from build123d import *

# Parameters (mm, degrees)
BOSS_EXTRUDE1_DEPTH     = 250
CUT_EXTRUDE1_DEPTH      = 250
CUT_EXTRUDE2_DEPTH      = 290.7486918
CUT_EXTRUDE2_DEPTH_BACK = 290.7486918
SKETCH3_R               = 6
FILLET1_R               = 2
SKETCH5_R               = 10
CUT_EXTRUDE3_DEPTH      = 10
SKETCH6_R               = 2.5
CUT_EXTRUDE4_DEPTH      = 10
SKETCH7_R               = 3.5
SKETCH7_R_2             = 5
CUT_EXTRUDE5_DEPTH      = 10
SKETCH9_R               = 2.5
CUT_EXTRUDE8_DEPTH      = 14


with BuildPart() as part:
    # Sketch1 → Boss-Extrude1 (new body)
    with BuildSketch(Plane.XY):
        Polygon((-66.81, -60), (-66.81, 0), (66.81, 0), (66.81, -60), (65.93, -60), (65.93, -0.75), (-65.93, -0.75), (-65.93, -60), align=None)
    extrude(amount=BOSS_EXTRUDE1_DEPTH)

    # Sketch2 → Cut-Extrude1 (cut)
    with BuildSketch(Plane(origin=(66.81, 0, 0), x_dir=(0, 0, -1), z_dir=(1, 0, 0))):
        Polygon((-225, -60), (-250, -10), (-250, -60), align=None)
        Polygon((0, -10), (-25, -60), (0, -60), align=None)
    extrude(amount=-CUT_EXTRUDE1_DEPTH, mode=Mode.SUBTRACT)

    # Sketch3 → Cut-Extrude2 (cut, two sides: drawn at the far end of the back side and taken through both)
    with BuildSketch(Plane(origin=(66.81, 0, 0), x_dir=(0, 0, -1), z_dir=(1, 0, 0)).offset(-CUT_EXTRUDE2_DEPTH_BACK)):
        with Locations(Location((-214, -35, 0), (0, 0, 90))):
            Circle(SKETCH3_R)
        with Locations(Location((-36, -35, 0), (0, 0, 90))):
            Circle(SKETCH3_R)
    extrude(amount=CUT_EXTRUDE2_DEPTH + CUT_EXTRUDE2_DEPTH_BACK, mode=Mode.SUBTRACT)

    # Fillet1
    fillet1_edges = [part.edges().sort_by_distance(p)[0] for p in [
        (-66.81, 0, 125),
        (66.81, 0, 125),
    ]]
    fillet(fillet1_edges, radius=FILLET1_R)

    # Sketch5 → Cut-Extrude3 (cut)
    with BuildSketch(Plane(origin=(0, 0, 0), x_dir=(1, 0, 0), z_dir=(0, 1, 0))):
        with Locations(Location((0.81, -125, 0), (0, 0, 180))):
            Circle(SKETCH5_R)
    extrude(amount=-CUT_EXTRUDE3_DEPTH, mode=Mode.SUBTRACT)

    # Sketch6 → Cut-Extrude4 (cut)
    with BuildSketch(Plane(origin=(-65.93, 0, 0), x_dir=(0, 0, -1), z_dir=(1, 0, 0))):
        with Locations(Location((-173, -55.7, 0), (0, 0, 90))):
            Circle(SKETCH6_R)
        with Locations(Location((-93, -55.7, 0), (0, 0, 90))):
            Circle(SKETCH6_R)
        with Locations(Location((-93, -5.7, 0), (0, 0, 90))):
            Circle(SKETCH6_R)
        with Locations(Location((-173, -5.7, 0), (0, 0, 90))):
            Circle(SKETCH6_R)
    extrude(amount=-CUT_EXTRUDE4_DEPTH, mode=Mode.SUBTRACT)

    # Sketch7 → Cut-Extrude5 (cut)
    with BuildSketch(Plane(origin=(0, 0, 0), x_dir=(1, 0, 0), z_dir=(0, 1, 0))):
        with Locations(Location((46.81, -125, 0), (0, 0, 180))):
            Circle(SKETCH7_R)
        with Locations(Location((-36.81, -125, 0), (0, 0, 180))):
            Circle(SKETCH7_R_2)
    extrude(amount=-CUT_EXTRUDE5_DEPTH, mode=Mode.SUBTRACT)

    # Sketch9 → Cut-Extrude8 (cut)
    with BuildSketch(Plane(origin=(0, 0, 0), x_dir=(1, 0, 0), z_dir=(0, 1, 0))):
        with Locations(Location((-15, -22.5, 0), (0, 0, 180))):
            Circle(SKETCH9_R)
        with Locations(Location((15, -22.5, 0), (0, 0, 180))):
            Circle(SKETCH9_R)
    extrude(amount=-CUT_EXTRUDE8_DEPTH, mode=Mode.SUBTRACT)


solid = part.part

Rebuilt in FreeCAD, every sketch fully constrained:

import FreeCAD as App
import Part
import Sketcher


def edges_at(feature, points):
    """Names of the edges that pass closest to the given points."""
    edges = feature.Shape.Edges
    near = lambda p: min(range(len(edges)), key=lambda i: edges[i].distToShape(Part.Vertex(*p))[0])
    return sorted({f"Edge{near(p) + 1}" for p in points})


def add_polygon(sketch, points):
    """Adds a closed chain of lines whose ends are joined by coincident constraints."""
    first, n = sketch.GeometryCount, len(points)
    for a, b in zip(points, points[1:] + points[:1]):
        sketch.addGeometry(Part.LineSegment(App.Vector(*a, 0), App.Vector(*b, 0)), False)
    for i in range(n):
        sketch.addConstraint(Sketcher.Constraint("Coincident", first + i, 2, first + (i + 1) % n, 1))

doc = App.newDocument("Part")
params = doc.addObject("Spreadsheet::Sheet", "Params")
for row, (alias, value) in enumerate([
    ("sketch1_height", "60 mm"),
    ("sketch1_width", "0.88 mm"),
    ("sketch1_width2", "131.86 mm"),
    ("sketch1_height2", "59.25 mm"),
    ("pad1_length", "250 mm"),
    ("sketch2_width", "50 mm"),
    ("sketch2_height", "25 mm"),
    ("pocket1_length", "250 mm"),
    ("sketch3_diameter", "12 mm"),
    ("fillet_radius", "2 mm"),
    ("sketch4_diameter", "20 mm"),
    ("pocket3_length", "10 mm"),
    ("sketch5_diameter", "5 mm"),
    ("pocket4_length", "10 mm"),
    ("sketch6_diameter", "7 mm"),
    ("sketch6_diameter2", "10 mm"),
    ("pocket5_length", "10 mm"),
    ("sketch7_diameter", "5 mm"),
    ("pocket6_length", "14 mm"),
], start=1):
    params.set(f"A{row}", alias)
    params.set(f"B{row}", "=" + value)
    params.setAlias(f"B{row}", alias)

body = doc.addObject("PartDesign::Body", "Body")

sketch1 = body.newObject("Sketcher::SketchObject", "Sketch")
sketch1.AttachmentSupport = (doc.getObject("XY_Plane"), [""])
sketch1.MapMode = "FlatFace"
add_polygon(sketch1, [(-66.8, 0), (-66.8, -60), (-65.9, -60), (-65.9, -0.8), (65.9, -0.8), (65.9, -60), (66.8, -60), (66.8, 0)])
sketch1.addConstraint([
    Sketcher.Constraint("Vertical", 0),
    Sketcher.Constraint("Horizontal", 1),
    Sketcher.Constraint("Vertical", 2),
    Sketcher.Constraint("Horizontal", 3),
    Sketcher.Constraint("Vertical", 4),
    Sketcher.Constraint("Horizontal", 5),
    Sketcher.Constraint("Vertical", 6),
    Sketcher.Constraint("Horizontal", 7),
    Sketcher.Constraint("Symmetric", 6, 2, 7, 2, -1, 1),
    Sketcher.Constraint("Symmetric", 1, 2, 4, 2, -2),
    Sketcher.Constraint("DistanceY", 0, 2, 0, 1, 60.0),
    Sketcher.Constraint("DistanceX", 1, 1, 1, 2, 0.88),
    Sketcher.Constraint("DistanceX", 3, 1, 3, 2, 131.86),
    Sketcher.Constraint("DistanceY", 2, 1, 2, 2, 59.25),
])
sketch1.setExpression("Constraints[18]", "Params.sketch1_height")
sketch1.setExpression("Constraints[19]", "Params.sketch1_width")
sketch1.setExpression("Constraints[20]", "Params.sketch1_width2")
sketch1.setExpression("Constraints[21]", "Params.sketch1_height2")
pad1 = body.newObject("PartDesign::Pad", "Pad")
pad1.Profile = sketch1
pad1.setExpression("Length", "Params.pad1_length")

sketch2 = body.newObject("Sketcher::SketchObject", "Sketch001")
sketch2.AttachmentSupport = (doc.getObject("YZ_Plane"), [""])
sketch2.MapMode = "FlatFace"
sketch2.AttachmentOffset = App.Placement(App.Vector(0, 0, 66.81), App.Rotation())
add_polygon(sketch2, [(-60, 225), (-10, 250), (-60, 250)])
add_polygon(sketch2, [(-10, 0), (-60, 25), (-60, 0)])
sketch2.addConstraint([
    Sketcher.Constraint("Horizontal", 1),
    Sketcher.Constraint("Vertical", 2),
    Sketcher.Constraint("Vertical", 4),
    Sketcher.Constraint("Horizontal", 5),
    Sketcher.Constraint("PointOnObject", 4, 2, -1),
    Sketcher.Constraint("Vertical", 2, 2, 3, 2),
    Sketcher.Constraint("Vertical", 0, 2, 5, 2),
    Sketcher.Constraint("Equal", 2, 4),
    Sketcher.Constraint("DistanceX", 1, 2, 1, 1, 50.0),
    Sketcher.Constraint("DistanceY", 2, 2, 2, 1, 25.0),
    Sketcher.Constraint("DistanceX", 0, 2, -1, 1, 10.0),
    Sketcher.Constraint("DistanceY", -1, 1, 0, 2, 250.0),
])
sketch2.setExpression("Constraints[14]", "Params.sketch2_width")
sketch2.setExpression("Constraints[15]", "Params.sketch2_height")
pocket1 = body.newObject("PartDesign::Pocket", "Pocket")
pocket1.Profile = sketch2
pocket1.setExpression("Length", "Params.pocket1_length")

sketch3 = body.newObject("Sketcher::SketchObject", "Sketch002")
sketch3.AttachmentSupport = (doc.getObject("YZ_Plane"), [""])
sketch3.MapMode = "FlatFace"
sketch3.AttachmentOffset = App.Placement(App.Vector(0, 0, 66.81), App.Rotation())
sketch3.addGeometry([
    Part.Circle(App.Vector(-35, 214, 0), App.Vector(0, 0, 1), 6),
    Part.Circle(App.Vector(-35, 36, 0), App.Vector(0, 0, 1), 6),
], False)
sketch3.addConstraint([
    Sketcher.Constraint("Equal", 0, 1),
    Sketcher.Constraint("Vertical", 0, 3, 1, 3),
    Sketcher.Constraint("Diameter", 0, 12.0),
    Sketcher.Constraint("DistanceX", 0, 3, -1, 1, 35.0),
    Sketcher.Constraint("DistanceY", -1, 1, 0, 3, 214.0),
    Sketcher.Constraint("DistanceY", -1, 1, 1, 3, 36.0),
])
sketch3.setExpression("Constraints[2]", "Params.sketch3_diameter")
pocket2 = body.newObject("PartDesign::Pocket", "Pocket001")
pocket2.Profile = sketch3
pocket2.Type = "ThroughAll"
pocket2.Midplane = True
doc.recompute()

fillet = body.newObject("PartDesign::Fillet", "Fillet")
fillet.Base = (pocket2, edges_at(pocket2, [(-66.81, 0, 125), (66.81, 0, 125)]))
fillet.setExpression("Radius", "Params.fillet_radius")

sketch4 = body.newObject("Sketcher::SketchObject", "Sketch003")
sketch4.AttachmentSupport = (doc.getObject("XZ_Plane"), [""])
sketch4.MapMode = "FlatFace"
sketch4.addGeometry(Part.Circle(App.Vector(1, 125, 0), App.Vector(0, 0, 1), 10), False)
sketch4.addConstraint([
    Sketcher.Constraint("Diameter", 0, 20.0),
    Sketcher.Constraint("DistanceY", -1, 1, 0, 3, 125.0),
    Sketcher.Constraint("DistanceX", -1, 1, 0, 3, 0.81),
])
sketch4.setExpression("Constraints[0]", "Params.sketch4_diameter")
pocket3 = body.newObject("PartDesign::Pocket", "Pocket002")
pocket3.Profile = sketch4
pocket3.setExpression("Length", "Params.pocket3_length")
pocket3.Reversed = True

sketch5 = body.newObject("Sketcher::SketchObject", "Sketch004")
sketch5.AttachmentSupport = (doc.getObject("YZ_Plane"), [""])
sketch5.MapMode = "FlatFace"
sketch5.AttachmentOffset = App.Placement(App.Vector(0, 0, -65.93), App.Rotation())
sketch5.addGeometry([
    Part.Circle(App.Vector(-55.7, 173, 0), App.Vector(0, 0, 1), 2.5),
    Part.Circle(App.Vector(-55.7, 93, 0), App.Vector(0, 0, 1), 2.5),
    Part.Circle(App.Vector(-5.7, 93, 0), App.Vector(0, 0, 1), 2.5),
    Part.Circle(App.Vector(-5.7, 173, 0), App.Vector(0, 0, 1), 2.5),
], False)
sketch5.addConstraint([
    Sketcher.Constraint("Equal", 0, 1),
    Sketcher.Constraint("Equal", 1, 2),
    Sketcher.Constraint("Equal", 2, 3),
    Sketcher.Constraint("Horizontal", 1, 3, 2, 3),
    Sketcher.Constraint("Horizontal", 0, 3, 3, 3),
    Sketcher.Constraint("Vertical", 0, 3, 1, 3),
    Sketcher.Constraint("Vertical", 2, 3, 3, 3),
    Sketcher.Constraint("Diameter", 0, 5.0),
    Sketcher.Constraint("DistanceY", -1, 1, 0, 3, 173.0),
    Sketcher.Constraint("DistanceY", -1, 1, 1, 3, 93.0),
    Sketcher.Constraint("DistanceX", 1, 3, 2, 3, 50.0),
    Sketcher.Constraint("DistanceX", 0, 3, -1, 1, 55.7),
])
sketch5.setExpression("Constraints[7]", "Params.sketch5_diameter")
pocket4 = body.newObject("PartDesign::Pocket", "Pocket003")
pocket4.Profile = sketch5
pocket4.setExpression("Length", "Params.pocket4_length")

sketch6 = body.newObject("Sketcher::SketchObject", "Sketch005")
sketch6.AttachmentSupport = (doc.getObject("XZ_Plane"), [""])
sketch6.MapMode = "FlatFace"
sketch6.addGeometry([
    Part.Circle(App.Vector(46.8, 125, 0), App.Vector(0, 0, 1), 3.5),
    Part.Circle(App.Vector(-36.8, 125, 0), App.Vector(0, 0, 1), 5),
], False)
sketch6.addConstraint([
    Sketcher.Constraint("Horizontal", 0, 3, 1, 3),
    Sketcher.Constraint("Diameter", 0, 7.0),
    Sketcher.Constraint("Diameter", 1, 10.0),
    Sketcher.Constraint("DistanceY", -1, 1, 0, 3, 125.0),
    Sketcher.Constraint("DistanceX", -1, 1, 0, 3, 46.81),
    Sketcher.Constraint("DistanceX", 1, 3, -1, 1, 36.81),
])
sketch6.setExpression("Constraints[1]", "Params.sketch6_diameter")
sketch6.setExpression("Constraints[2]", "Params.sketch6_diameter2")
pocket5 = body.newObject("PartDesign::Pocket", "Pocket004")
pocket5.Profile = sketch6
pocket5.setExpression("Length", "Params.pocket5_length")
pocket5.Reversed = True

sketch7 = body.newObject("Sketcher::SketchObject", "Sketch006")
sketch7.AttachmentSupport = (doc.getObject("XZ_Plane"), [""])
sketch7.MapMode = "FlatFace"
sketch7.addGeometry([
    Part.Circle(App.Vector(-15, 22.5, 0), App.Vector(0, 0, 1), 2.5),
    Part.Circle(App.Vector(15, 22.5, 0), App.Vector(0, 0, 1), 2.5),
], False)
sketch7.addConstraint([
    Sketcher.Constraint("Equal", 0, 1),
    Sketcher.Constraint("Symmetric", 0, 3, 1, 3, -2),
    Sketcher.Constraint("Diameter", 0, 5.0),
    Sketcher.Constraint("DistanceX", 0, 3, -1, 1, 15.0),
    Sketcher.Constraint("DistanceY", -1, 1, 0, 3, 22.5),
])
sketch7.setExpression("Constraints[2]", "Params.sketch7_diameter")
pocket6 = body.newObject("PartDesign::Pocket", "Pocket005")
pocket6.Profile = sketch7
pocket6.setExpression("Length", "Params.pocket6_length")
pocket6.Reversed = True

doc.recompute()
